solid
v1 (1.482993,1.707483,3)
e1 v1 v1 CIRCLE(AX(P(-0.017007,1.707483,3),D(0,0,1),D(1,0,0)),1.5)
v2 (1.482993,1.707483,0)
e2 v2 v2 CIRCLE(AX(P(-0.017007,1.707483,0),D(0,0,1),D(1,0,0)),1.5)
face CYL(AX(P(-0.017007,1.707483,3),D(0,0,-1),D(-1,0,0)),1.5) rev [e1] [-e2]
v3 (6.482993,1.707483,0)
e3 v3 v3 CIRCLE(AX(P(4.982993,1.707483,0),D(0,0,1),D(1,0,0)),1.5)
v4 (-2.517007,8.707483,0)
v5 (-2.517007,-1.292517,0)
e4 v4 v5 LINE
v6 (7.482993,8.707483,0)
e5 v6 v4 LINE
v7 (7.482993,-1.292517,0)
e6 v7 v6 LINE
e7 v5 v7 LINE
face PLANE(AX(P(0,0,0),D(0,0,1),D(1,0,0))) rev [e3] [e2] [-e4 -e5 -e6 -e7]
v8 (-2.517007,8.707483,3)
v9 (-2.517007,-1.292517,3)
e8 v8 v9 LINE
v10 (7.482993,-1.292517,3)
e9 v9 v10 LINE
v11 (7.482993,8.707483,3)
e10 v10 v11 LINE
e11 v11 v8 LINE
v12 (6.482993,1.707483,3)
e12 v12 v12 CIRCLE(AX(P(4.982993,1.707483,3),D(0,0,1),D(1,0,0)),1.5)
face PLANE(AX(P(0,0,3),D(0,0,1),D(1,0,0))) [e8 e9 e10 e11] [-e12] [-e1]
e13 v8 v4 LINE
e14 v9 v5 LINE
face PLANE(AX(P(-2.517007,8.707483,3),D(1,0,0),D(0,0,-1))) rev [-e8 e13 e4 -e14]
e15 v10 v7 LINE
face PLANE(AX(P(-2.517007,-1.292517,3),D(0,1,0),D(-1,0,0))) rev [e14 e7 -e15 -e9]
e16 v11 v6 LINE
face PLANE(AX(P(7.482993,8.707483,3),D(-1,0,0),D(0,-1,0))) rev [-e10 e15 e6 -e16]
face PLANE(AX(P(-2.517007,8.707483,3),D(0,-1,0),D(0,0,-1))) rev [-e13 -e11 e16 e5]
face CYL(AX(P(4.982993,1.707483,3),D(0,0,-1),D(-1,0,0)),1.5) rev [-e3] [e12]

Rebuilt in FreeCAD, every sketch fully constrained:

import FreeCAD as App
import Part
import Sketcher
Q = App.Units.Quantity


def add_polygon(sketch, points):
    """Adds a closed chain of lines whose ends are joined by coincident constraints."""
    first, n = sketch.GeometryCount, len(points)
    for a, b in zip(points, points[1:] + points[:1]):
        sketch.addGeometry(Part.LineSegment(App.Vector(*a, 0), App.Vector(*b, 0)), False)
    for i in range(n):
        sketch.addConstraint(Sketcher.Constraint("Coincident", first + i, 2, first + (i + 1) % n, 1))

doc = App.newDocument("Part")
body = doc.addObject("PartDesign::Body", "Body")

# Sketch on XY plane
sketch1 = doc.addObject("Sketcher::SketchObject", "Sketch")
body.addObject(sketch1)
sketch1.AttachmentSupport = (doc.XY_Plane, [""])
sketch1.MapMode = "FlatFace"
add_polygon(sketch1, [(-2.5, 8.7), (-2.5, -1.3), (7.5, -1.3), (7.5, 8.7)])  # lines 0-3
sketch1.addGeometry(Part.Circle(App.Vector(0, 1.7, 0), App.Vector(0, 0, 1), 1.5), False)  # 4
sketch1.addGeometry(Part.Circle(App.Vector(5, 1.7, 0), App.Vector(0, 0, 1), 1.5), False)  # 5
sketch1.addConstraint([
    Sketcher.Constraint("Vertical", 0),
    Sketcher.Constraint("Horizontal", 1),
    Sketcher.Constraint("Vertical", 2),
    Sketcher.Constraint("Horizontal", 3),
    Sketcher.Constraint("Equal", 4, 5),
    Sketcher.Constraint("Horizontal", 4, 3, 5, 3),
    Sketcher.Constraint("Equal", 3, 0),
    Sketcher.Constraint("Diameter", 4, Q("3 mm")),
    Sketcher.Constraint("DistanceX", 1, 1, 1, 2, Q("10 mm")),
    Sketcher.Constraint("DistanceX", 4, 3, 5, 3, Q("5 mm")),
    Sketcher.Constraint("DistanceY", 0, 2, 4, 3, Q("3 mm")),
    Sketcher.Constraint("DistanceX", 0, 2, 4, 3, Q("2.5 mm")),
    Sketcher.Constraint("DistanceX", 4, 3, -1, 1, Q("0.017007 mm")),
    Sketcher.Constraint("DistanceY", -1, 1, 4, 3, Q("1.707483 mm")),
])
pad1 = doc.addObject("PartDesign::Pad", "Pad")
body.addObject(pad1)
pad1.Profile = sketch1
pad1.Length = 3

doc.recompute()
